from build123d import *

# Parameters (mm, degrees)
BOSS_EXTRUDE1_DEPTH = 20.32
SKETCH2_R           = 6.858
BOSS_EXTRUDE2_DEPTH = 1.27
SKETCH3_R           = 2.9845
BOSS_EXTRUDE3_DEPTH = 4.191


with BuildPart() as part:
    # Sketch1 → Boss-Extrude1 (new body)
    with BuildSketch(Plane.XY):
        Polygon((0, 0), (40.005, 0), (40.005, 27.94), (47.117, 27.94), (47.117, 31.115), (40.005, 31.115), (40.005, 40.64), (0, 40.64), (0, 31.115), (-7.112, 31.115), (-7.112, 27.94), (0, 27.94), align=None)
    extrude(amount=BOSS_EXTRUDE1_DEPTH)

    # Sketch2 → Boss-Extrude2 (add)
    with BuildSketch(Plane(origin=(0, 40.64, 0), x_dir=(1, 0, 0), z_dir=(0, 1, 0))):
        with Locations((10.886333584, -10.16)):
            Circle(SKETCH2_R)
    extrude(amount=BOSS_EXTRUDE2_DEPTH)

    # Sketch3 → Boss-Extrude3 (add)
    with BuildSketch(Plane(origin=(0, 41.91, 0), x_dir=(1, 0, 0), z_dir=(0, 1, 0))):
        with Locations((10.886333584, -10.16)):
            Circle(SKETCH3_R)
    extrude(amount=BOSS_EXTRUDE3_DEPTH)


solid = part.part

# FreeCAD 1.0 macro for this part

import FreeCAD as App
import Part
import Sketcher
Q = App.Units.Quantity


def add_polygon(sketch, points):
    """Adds a closed chain of lines whose ends are joined by coincident constraints."""
    first, n = sketch.GeometryCount, len(points)
    for a, b in zip(points, points[1:] + points[:1]):
        sketch.addGeometry(Part.LineSegment(App.Vector(*a, 0), App.Vector(*b, 0)), False)
    for i in range(n):
        sketch.addConstraint(Sketcher.Constraint("Coincident", first + i, 2, first + (i + 1) % n, 1))

doc = App.newDocument("Part")
body = doc.addObject("PartDesign::Body", "Body")

# Sketch on XY plane
sketch1 = body.newObject("Sketcher::SketchObject", "Sketch")
sketch1.AttachmentSupport = (doc.getObject("XY_Plane"), [""])
sketch1.MapMode = "FlatFace"
add_polygon(sketch1, [(0, 0), (40, 0), (40, 27.9), (47.1, 27.9), (47.1, 31.1), (40, 31.1), (40, 40.6), (0, 40.6), (0, 31.1), (-7.1, 31.1), (-7.1, 27.9), (0, 27.9)])  # lines 0-11
sketch1.addConstraint([
    Sketcher.Constraint("Horizontal", 0),
    Sketcher.Constraint("Vertical", 1),
    Sketcher.Constraint("Horizontal", 2),
    Sketcher.Constraint("Vertical", 3),
    Sketcher.Constraint("Horizontal", 4),
    Sketcher.Constraint("Vertical", 5),
    Sketcher.Constraint("Horizontal", 6),
    Sketcher.Constraint("Vertical", 7),
    Sketcher.Constraint("Horizontal", 8),
    Sketcher.Constraint("Vertical", 9),
    Sketcher.Constraint("Horizontal", 10),
    Sketcher.Constraint("Vertical", 11),
    Sketcher.Constraint("Coincident", 11, 2, -1, 1),
    Sketcher.Constraint("PointOnObject", 6, 2, -2),
    Sketcher.Constraint("Horizontal", 4, 2, 7, 2),
    Sketcher.Constraint("Horizontal", 2, 2, 9, 2),
    Sketcher.Constraint("Vertical", 1, 2, 4, 2),
    Sketcher.Constraint("Equal", 4, 8),
    Sketcher.Constraint("DistanceY", 1, 1, 1, 2, Q("1.1 in")),
    Sketcher.Constraint("DistanceX", 2, 1, 2, 2, Q("0.28 in")),
    Sketcher.Constraint("DistanceY", -1, 1, 5, 2, Q("1.6 in")),
    Sketcher.Constraint("DistanceX", 0, 1, 0, 2, Q("1.575 in")),
    Sketcher.Constraint("DistanceY", 3, 1, 3, 2, Q("0.125 in")),
])
pad1 = body.newObject("PartDesign::Pad", "Pad")
pad1.Profile = sketch1
pad1.Length = Q("0.8 in")

# Sketch on XZ plane
sketch2 = body.newObject("Sketcher::SketchObject", "Sketch001")
sketch2.AttachmentSupport = (doc.getObject("XZ_Plane"), [""])
sketch2.MapMode = "FlatFace"
sketch2.AttachmentOffset = App.Placement(App.Vector(0, 0, -1.6 * 25.4), App.Rotation())
sketch2.addGeometry(Part.Circle(App.Vector(11, 10, 0), App.Vector(0, 0, 1), 7), False)
sketch2.addConstraint([
    Sketcher.Constraint("Diameter", 0, Q("0.54 in")),
    Sketcher.Constraint("DistanceY", -1, 1, 0, 3, Q("0.4 in")),
    Sketcher.Constraint("DistanceX", -1, 1, 0, 3, 10.886334),
])
pad2 = body.newObject("PartDesign::Pad", "Pad001")
pad2.Profile = sketch2
pad2.Length = Q("0.05 in")
pad2.Reversed = True

# Sketch on XZ plane
sketch3 = body.newObject("Sketcher::SketchObject", "Sketch002")
sketch3.AttachmentSupport = (doc.getObject("XZ_Plane"), [""])
sketch3.MapMode = "FlatFace"
sketch3.AttachmentOffset = App.Placement(App.Vector(0, 0, -1.65 * 25.4), App.Rotation())
sketch3.addGeometry(Part.Circle(App.Vector(10.9, 10.2, 0), App.Vector(0, 0, 1), 3), False)
sketch3.addConstraint([
    Sketcher.Constraint("Diameter", 0, Q("0.235 in")),
    Sketcher.Constraint("DistanceY", -1, 1, 0, 3, Q("0.4 in")),
    Sketcher.Constraint("DistanceX", -1, 1, 0, 3, 10.886334),
])
pad3 = body.newObject("PartDesign::Pad", "Pad002")
pad3.Profile = sketch3
pad3.Length = Q("0.165 in")
pad3.Reversed = True

doc.recompute()
